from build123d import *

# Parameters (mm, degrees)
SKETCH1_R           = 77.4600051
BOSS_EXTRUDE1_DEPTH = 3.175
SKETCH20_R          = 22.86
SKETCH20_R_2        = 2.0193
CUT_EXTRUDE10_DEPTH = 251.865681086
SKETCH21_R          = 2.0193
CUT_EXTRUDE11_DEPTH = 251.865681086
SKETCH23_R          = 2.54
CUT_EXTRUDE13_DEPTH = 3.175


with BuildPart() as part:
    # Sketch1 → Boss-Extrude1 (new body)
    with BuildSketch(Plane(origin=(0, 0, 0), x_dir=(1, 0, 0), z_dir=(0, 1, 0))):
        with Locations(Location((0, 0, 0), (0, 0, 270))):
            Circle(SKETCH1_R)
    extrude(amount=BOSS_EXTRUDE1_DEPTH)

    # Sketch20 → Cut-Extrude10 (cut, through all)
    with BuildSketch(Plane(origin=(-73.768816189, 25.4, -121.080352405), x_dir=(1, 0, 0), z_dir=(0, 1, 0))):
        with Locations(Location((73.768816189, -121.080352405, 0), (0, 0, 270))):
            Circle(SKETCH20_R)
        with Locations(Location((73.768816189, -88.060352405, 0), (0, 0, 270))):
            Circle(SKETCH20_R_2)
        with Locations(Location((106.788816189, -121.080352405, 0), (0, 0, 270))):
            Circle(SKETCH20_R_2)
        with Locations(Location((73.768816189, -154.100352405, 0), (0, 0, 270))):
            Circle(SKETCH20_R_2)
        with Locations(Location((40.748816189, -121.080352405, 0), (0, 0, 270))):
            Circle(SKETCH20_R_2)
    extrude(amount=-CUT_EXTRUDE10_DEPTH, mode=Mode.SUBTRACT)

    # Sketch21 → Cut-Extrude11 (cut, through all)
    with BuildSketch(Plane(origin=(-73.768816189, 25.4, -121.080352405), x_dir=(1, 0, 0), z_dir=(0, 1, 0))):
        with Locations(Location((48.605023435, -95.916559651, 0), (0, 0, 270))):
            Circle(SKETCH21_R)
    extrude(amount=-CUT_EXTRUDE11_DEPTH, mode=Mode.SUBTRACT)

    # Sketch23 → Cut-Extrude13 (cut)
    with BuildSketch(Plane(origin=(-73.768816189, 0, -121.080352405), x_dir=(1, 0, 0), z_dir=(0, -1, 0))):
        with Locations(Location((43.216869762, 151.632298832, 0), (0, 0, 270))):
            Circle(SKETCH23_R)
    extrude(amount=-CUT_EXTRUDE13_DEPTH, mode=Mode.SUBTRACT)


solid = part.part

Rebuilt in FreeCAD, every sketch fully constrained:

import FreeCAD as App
import Part
import Sketcher
Q = App.Units.Quantity

doc = App.newDocument("Part")
body = doc.addObject("PartDesign::Body", "Body")

# Sketch on XZ plane
sketch1 = body.newObject("Sketcher::SketchObject", "Sketch")
sketch1.AttachmentSupport = (doc.getObject("XZ_Plane"), [""])
sketch1.MapMode = "FlatFace"
sketch1.addGeometry(Part.Circle(App.Vector(0, 0, 0), App.Vector(0, 0, 1), 77), False)
sketch1.addConstraint([
    Sketcher.Constraint("Coincident", 0, 3, -1, 1),
    Sketcher.Constraint("Diameter", 0, Q("154.92001 mm")),
])
pad1 = body.newObject("PartDesign::Pad", "Pad")
pad1.Profile = sketch1
pad1.Length = Q("0.125 in")
pad1.Reversed = True

# Sketch on XZ plane
sketch2 = body.newObject("Sketcher::SketchObject", "Sketch001")
sketch2.AttachmentSupport = (doc.getObject("XZ_Plane"), [""])
sketch2.MapMode = "FlatFace"
sketch2.AttachmentOffset = App.Placement(App.Vector(0, 0, -1 * 25.4), App.Rotation())
sketch2.addGeometry([
    Part.Circle(App.Vector(0, 0, 0), App.Vector(0, 0, 1), 22.9),  # 0
    Part.Circle(App.Vector(0, -33, 0), App.Vector(0, 0, 1), 2),  # 1
    Part.Circle(App.Vector(33, 0, 0), App.Vector(0, 0, 1), 2),  # 2
    Part.Circle(App.Vector(0, 33, 0), App.Vector(0, 0, 1), 2),  # 3
    Part.Circle(App.Vector(-33, 0, 0), App.Vector(0, 0, 1), 2),  # 4
], False)
sketch2.addConstraint([
    Sketcher.Constraint("Coincident", 0, 3, -1, 1),
    Sketcher.Constraint("Equal", 1, 2),
    Sketcher.Constraint("Equal", 2, 3),
    Sketcher.Constraint("Equal", 3, 4),
    Sketcher.Constraint("Symmetric", 1, 3, 3, 3, -1, 1),
    Sketcher.Constraint("Symmetric", 2, 3, 4, 3, -1, 1),
    Sketcher.Constraint("PointOnObject", 1, 3, -2),
    Sketcher.Constraint("PointOnObject", 2, 3, -1),
    Sketcher.Constraint("Diameter", 0, Q("1.8 in")),
    Sketcher.Constraint("Diameter", 1, Q("0.159 in")),
    Sketcher.Constraint("DistanceY", 1, 3, -1, 1, Q("1.3 in")),
    Sketcher.Constraint("DistanceX", -1, 1, 2, 3, Q("1.3 in")),
])
pocket1 = body.newObject("PartDesign::Pocket", "Pocket")
pocket1.Profile = sketch2
pocket1.Type = "ThroughAll"
pocket1.Reversed = True

# Sketch on XZ plane
sketch3 = body.newObject("Sketcher::SketchObject", "Sketch002")
sketch3.AttachmentSupport = (doc.getObject("XZ_Plane"), [""])
sketch3.MapMode = "FlatFace"
sketch3.AttachmentOffset = App.Placement(App.Vector(0, 0, -1 * 25.4), App.Rotation())
sketch3.addGeometry(Part.Circle(App.Vector(-25.2, -25.2, 0), App.Vector(0, 0, 1), 2), False)
sketch3.addConstraint([
    Sketcher.Constraint("Diameter", 0, Q("0.159 in")),
    Sketcher.Constraint("DistanceX", 0, 3, -1, 1, Q("25.163793 mm")),
    Sketcher.Constraint("DistanceY", 0, 3, -1, 1, Q("25.163793 mm")),
])
pocket2 = body.newObject("PartDesign::Pocket", "Pocket001")
pocket2.Profile = sketch3
pocket2.Type = "ThroughAll"
pocket2.Reversed = True

# Sketch on XZ plane
sketch4 = body.newObject("Sketcher::SketchObject", "Sketch003")
sketch4.AttachmentSupport = (doc.getObject("XZ_Plane"), [""])
sketch4.MapMode = "FlatFace"
sketch4.addGeometry(Part.Circle(App.Vector(-30.6, 30.6, 0), App.Vector(0, 0, 1), 2.5), False)
sketch4.addConstraint([
    Sketcher.Constraint("Diameter", 0, Q("0.2 in")),
    Sketcher.Constraint("DistanceX", 0, 3, -1, 1, Q("30.551946 mm")),
    Sketcher.Constraint("DistanceY", -1, 1, 0, 3, Q("30.551946 mm")),
])
pocket3 = body.newObject("PartDesign::Pocket", "Pocket002")
pocket3.Profile = sketch4
pocket3.Length = Q("0.125 in")

doc.recompute()
